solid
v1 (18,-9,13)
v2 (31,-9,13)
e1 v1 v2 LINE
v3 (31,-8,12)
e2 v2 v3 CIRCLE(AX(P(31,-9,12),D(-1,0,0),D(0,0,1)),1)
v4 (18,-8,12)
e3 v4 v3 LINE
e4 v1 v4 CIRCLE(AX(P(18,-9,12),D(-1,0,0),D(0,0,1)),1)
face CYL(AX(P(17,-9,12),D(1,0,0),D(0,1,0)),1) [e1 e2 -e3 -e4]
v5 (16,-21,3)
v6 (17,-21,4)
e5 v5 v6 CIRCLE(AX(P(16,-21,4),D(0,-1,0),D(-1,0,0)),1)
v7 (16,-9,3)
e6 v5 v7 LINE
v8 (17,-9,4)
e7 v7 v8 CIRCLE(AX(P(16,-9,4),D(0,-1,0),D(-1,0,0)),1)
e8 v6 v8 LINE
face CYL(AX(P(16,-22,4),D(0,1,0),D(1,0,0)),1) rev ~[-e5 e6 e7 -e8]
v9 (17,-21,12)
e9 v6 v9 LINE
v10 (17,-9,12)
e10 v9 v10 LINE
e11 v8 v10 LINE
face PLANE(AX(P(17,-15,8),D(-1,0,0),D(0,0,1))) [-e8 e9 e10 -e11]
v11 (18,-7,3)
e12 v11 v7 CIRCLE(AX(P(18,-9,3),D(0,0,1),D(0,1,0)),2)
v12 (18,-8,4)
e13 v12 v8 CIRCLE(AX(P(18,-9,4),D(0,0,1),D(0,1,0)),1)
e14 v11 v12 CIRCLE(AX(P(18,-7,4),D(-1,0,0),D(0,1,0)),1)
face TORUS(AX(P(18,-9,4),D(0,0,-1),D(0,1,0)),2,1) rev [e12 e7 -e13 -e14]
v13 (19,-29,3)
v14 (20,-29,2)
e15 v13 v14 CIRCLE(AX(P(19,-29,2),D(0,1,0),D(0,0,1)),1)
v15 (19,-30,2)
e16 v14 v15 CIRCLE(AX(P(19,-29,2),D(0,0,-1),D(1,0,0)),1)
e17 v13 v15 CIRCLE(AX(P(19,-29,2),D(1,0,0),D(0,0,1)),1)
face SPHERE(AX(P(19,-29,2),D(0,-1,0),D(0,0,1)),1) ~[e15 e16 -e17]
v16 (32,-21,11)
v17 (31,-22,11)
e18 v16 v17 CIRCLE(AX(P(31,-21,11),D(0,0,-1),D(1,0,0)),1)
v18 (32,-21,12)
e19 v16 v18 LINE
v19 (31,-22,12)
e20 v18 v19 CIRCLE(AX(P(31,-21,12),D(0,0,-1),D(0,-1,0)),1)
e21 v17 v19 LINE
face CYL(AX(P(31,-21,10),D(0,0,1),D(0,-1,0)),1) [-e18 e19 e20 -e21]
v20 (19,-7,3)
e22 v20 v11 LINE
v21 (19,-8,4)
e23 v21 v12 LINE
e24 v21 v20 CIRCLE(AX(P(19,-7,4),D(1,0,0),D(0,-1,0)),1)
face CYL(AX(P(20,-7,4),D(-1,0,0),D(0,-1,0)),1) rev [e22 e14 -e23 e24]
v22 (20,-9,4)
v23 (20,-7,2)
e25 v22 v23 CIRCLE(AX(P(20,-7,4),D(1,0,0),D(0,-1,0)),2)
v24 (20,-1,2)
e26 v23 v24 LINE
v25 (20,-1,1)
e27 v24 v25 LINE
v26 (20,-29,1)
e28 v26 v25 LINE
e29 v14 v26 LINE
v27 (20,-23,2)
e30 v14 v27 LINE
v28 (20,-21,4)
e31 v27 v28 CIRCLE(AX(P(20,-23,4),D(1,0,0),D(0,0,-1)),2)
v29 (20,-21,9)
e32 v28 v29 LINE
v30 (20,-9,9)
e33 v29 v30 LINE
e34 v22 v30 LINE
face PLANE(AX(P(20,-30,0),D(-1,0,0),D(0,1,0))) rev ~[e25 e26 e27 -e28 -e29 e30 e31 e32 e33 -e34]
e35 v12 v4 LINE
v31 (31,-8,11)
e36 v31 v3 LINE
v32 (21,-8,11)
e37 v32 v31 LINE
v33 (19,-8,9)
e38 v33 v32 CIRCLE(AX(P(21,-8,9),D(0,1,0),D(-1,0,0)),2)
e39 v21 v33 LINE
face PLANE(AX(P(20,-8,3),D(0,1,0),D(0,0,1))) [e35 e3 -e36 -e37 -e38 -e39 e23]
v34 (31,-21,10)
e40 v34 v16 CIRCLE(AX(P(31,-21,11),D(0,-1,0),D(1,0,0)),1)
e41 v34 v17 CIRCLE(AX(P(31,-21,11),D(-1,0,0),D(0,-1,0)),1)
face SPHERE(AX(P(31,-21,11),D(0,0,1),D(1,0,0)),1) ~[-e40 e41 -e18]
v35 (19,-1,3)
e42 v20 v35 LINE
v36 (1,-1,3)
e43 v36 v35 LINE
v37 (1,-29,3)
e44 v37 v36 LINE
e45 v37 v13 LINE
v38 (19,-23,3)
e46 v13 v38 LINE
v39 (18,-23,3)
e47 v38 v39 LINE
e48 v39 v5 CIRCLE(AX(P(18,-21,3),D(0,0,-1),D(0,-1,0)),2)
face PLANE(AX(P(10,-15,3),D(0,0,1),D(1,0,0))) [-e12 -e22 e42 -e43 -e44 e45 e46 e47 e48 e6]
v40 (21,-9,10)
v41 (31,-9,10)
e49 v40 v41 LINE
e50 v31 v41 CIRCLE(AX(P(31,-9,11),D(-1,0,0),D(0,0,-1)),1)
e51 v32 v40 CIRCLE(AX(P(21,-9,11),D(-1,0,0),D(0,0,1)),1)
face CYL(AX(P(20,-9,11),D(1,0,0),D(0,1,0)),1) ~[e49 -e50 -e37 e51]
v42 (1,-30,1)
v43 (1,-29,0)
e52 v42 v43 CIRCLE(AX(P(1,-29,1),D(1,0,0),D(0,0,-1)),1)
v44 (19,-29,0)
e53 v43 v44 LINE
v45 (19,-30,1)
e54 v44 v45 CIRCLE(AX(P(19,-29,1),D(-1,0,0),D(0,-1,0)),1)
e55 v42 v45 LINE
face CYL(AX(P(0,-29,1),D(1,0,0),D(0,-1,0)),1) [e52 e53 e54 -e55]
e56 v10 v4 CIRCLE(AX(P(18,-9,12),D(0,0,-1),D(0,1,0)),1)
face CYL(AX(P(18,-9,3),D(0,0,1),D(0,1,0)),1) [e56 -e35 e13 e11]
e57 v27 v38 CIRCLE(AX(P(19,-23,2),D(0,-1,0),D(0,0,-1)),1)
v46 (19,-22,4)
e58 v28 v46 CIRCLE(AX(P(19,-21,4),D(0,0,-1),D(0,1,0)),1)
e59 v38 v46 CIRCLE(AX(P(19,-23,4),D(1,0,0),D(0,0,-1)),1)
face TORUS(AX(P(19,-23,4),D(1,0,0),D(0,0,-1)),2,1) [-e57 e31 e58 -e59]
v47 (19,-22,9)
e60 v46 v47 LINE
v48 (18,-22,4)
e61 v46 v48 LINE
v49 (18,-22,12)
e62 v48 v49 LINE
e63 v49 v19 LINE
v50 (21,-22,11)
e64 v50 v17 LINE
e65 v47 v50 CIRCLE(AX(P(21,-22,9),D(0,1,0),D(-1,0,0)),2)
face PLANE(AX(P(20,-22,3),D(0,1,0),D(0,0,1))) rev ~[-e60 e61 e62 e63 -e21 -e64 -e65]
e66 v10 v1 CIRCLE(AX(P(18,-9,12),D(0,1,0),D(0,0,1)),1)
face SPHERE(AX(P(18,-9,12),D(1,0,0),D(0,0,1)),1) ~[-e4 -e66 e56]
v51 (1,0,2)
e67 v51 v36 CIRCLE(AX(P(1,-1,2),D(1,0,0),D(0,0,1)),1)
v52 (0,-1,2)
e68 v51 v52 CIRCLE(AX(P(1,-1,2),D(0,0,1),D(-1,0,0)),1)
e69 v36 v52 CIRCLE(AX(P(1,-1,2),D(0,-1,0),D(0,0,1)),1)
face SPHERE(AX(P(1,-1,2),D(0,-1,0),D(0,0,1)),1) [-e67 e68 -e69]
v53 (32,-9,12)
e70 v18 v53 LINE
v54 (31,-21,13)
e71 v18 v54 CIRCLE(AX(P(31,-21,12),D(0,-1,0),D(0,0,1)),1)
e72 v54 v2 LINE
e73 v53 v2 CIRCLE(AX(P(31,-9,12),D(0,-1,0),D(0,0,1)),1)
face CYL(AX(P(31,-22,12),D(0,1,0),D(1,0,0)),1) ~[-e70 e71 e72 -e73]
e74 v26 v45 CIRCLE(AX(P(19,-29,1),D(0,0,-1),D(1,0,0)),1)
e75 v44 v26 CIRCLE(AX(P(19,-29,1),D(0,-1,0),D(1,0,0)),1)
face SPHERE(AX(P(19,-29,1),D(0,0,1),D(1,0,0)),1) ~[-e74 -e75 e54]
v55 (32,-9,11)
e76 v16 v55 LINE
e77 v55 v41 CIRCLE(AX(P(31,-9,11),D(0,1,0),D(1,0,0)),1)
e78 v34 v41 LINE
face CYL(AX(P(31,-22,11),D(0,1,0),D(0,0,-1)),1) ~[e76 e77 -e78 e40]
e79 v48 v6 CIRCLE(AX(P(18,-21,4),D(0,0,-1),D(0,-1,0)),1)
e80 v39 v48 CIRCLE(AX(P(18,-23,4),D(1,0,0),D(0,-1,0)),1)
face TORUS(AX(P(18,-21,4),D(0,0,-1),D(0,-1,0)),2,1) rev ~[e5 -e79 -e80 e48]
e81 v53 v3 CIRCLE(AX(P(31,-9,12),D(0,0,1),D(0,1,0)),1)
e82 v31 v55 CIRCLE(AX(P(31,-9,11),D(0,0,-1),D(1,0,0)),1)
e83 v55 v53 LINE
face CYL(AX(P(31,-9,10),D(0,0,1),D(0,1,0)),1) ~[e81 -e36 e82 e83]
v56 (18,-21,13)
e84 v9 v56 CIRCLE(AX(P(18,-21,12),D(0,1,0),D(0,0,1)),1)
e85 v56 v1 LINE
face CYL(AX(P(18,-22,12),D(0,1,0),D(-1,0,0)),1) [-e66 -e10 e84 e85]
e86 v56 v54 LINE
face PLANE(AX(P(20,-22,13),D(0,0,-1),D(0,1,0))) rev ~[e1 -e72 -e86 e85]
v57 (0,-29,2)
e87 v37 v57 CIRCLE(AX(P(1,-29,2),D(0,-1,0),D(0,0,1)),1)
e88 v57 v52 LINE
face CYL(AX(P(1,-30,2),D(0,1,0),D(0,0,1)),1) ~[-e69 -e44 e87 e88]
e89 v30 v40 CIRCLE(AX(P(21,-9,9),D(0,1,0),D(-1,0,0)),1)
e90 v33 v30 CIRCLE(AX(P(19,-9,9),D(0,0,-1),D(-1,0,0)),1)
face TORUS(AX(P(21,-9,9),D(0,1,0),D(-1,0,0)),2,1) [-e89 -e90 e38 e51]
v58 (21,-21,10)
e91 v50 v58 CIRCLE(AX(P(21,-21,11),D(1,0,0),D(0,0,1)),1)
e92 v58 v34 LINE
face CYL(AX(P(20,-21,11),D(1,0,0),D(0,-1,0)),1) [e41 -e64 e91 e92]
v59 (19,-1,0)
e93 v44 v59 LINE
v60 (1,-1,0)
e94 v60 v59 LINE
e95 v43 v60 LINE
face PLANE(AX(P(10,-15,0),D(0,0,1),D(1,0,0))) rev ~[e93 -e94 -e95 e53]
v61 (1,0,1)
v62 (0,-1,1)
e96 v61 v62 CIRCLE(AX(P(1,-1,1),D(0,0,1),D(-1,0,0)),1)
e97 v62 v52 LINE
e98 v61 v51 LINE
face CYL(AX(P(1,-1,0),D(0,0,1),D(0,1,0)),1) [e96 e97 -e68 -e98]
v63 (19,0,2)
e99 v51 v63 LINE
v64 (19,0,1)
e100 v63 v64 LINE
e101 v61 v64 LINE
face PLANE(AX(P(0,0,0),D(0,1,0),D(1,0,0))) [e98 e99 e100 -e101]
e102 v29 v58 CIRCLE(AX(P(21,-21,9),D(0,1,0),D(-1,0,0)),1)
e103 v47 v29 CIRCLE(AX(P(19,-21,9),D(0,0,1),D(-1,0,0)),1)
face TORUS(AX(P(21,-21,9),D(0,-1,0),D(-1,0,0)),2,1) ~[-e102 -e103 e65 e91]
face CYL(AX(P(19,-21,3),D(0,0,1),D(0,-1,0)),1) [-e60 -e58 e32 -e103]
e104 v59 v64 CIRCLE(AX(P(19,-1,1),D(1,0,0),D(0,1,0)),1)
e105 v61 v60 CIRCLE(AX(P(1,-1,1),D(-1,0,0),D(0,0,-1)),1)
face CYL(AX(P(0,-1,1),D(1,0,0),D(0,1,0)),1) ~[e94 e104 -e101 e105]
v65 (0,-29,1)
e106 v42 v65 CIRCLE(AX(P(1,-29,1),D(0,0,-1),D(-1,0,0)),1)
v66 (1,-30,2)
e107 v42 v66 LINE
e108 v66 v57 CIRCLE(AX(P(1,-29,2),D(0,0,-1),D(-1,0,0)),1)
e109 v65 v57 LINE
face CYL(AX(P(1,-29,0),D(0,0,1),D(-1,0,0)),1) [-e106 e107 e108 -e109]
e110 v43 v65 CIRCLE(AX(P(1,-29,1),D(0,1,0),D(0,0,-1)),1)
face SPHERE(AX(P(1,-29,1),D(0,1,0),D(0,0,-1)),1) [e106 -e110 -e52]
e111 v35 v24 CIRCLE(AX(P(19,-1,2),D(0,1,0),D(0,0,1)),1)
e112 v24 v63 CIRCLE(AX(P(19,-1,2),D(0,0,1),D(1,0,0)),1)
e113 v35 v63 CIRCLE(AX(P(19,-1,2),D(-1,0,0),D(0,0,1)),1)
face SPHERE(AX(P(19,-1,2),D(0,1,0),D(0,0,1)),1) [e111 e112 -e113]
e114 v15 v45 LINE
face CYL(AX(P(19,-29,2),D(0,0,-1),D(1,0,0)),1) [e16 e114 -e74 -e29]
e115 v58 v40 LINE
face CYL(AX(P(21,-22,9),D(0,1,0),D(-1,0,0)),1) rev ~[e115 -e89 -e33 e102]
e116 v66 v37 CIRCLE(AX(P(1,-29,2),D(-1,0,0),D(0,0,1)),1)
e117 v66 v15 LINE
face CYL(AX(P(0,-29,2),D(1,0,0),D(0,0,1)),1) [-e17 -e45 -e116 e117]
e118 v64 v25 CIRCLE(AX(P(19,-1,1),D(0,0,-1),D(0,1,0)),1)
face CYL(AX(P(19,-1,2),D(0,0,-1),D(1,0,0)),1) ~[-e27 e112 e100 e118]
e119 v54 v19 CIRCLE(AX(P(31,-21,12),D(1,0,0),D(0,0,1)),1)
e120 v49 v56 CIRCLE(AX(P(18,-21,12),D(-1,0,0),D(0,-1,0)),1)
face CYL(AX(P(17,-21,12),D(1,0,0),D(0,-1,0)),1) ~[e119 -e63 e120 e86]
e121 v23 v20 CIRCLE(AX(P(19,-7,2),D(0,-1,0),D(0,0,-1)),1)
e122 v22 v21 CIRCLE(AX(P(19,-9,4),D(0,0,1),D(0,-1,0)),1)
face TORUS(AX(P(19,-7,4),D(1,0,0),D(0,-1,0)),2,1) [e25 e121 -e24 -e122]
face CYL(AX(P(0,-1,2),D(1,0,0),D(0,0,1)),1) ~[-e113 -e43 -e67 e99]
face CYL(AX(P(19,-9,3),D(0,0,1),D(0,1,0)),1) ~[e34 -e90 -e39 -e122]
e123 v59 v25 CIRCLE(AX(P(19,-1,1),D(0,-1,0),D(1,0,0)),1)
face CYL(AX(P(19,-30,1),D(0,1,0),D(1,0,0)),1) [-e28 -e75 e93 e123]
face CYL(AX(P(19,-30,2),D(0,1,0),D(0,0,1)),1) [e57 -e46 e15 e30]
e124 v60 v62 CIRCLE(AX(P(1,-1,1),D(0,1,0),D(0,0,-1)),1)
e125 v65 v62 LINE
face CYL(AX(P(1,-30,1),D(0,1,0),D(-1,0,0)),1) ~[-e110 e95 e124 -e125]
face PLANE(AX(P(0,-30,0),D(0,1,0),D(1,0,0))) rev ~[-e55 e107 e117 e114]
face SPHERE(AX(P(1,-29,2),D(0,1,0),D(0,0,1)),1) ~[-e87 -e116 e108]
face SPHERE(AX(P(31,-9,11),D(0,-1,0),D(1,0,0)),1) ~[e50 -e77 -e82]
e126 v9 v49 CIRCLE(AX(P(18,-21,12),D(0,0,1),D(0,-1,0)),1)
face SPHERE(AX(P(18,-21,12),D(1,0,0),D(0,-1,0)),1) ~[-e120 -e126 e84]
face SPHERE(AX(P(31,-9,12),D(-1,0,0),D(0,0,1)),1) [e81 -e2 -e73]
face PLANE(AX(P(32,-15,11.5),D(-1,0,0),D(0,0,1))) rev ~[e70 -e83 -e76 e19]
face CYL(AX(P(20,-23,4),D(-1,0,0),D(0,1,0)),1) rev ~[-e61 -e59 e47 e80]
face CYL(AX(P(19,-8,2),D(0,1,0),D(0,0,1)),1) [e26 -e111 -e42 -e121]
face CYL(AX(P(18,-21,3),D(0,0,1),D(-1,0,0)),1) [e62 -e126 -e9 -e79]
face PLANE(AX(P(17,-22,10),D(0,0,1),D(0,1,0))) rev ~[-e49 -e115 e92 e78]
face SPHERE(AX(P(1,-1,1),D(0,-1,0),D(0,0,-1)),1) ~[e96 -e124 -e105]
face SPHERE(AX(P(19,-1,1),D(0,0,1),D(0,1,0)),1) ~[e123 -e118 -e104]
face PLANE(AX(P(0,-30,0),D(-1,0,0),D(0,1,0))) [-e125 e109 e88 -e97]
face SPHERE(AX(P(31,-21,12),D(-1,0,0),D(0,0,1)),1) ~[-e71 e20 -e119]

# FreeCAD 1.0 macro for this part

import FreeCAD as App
import Part
import Sketcher

V = App.Vector
Q = App.Units.Quantity


def edges_at(feature, points):
    """Names of the edges that pass closest to the given points."""
    edges = feature.Shape.Edges
    near = lambda p: min(range(len(edges)), key=lambda i: edges[i].distToShape(Part.Vertex(*p))[0])
    return sorted({f"Edge{near(p) + 1}" for p in points})


def add_polygon(sketch, points):
    """Adds a closed chain of lines whose ends are joined by coincident constraints."""
    first, n = sketch.GeometryCount, len(points)
    for a, b in zip(points, points[1:] + points[:1]):
        sketch.addGeometry(Part.LineSegment(App.Vector(*a, 0), App.Vector(*b, 0)), False)
    for i in range(n):
        sketch.addConstraint(Sketcher.Constraint("Coincident", first + i, 2, first + (i + 1) % n, 1))

doc = App.newDocument("Part")
body = doc.addObject("PartDesign::Body", "Body")

# Sketch on XY plane
sketch1 = body.newObject("Sketcher::SketchObject", "Sketch")
sketch1.AttachmentSupport = (doc.getObject("XY_Plane"), [""])
sketch1.MapMode = "FlatFace"
add_polygon(sketch1, [(0, 0), (0, -30), (20, -30), (20, 0)])  # lines 0-3
sketch1.addConstraint(Sketcher.Constraint("Vertical", 0))
sketch1.addConstraint(Sketcher.Constraint("Horizontal", 1))
sketch1.addConstraint(Sketcher.Constraint("Vertical", 2))
sketch1.addConstraint(Sketcher.Constraint("Horizontal", 3))
sketch1.addConstraint(Sketcher.Constraint("Coincident", 3, 2, -1, 1))
sketch1.addConstraint(Sketcher.Constraint("DistanceX", 1, 1, 1, 2, Q("20 mm")))
sketch1.addConstraint(Sketcher.Constraint("DistanceY", 0, 2, 0, 1, Q("30 mm")))
pad1 = body.newObject("PartDesign::Pad", "Pad")
pad1.Profile = sketch1
pad1.Length = 3

# Sketch on YZ plane
sketch2 = body.newObject("Sketcher::SketchObject", "Sketch001")
sketch2.AttachmentSupport = (doc.getObject("YZ_Plane"), [""])
sketch2.MapMode = "FlatFace"
sketch2.AttachmentOffset = App.Placement(V(0, 0, 20), App.Rotation())
add_polygon(sketch2, [(-8, 3), (-22, 3), (-22, 13), (-8, 13)])  # lines 0-3
sketch2.addConstraint(Sketcher.Constraint("Horizontal", 0))
sketch2.addConstraint(Sketcher.Constraint("Vertical", 1))
sketch2.addConstraint(Sketcher.Constraint("Horizontal", 2))
sketch2.addConstraint(Sketcher.Constraint("Vertical", 3))
sketch2.addConstraint(Sketcher.Constraint("DistanceX", 0, 2, 0, 1, Q("14 mm")))
sketch2.addConstraint(Sketcher.Constraint("DistanceY", 1, 1, 1, 2, Q("10 mm")))
sketch2.addConstraint(Sketcher.Constraint("DistanceX", 0, 2, -1, 1, Q("22 mm")))
sketch2.addConstraint(Sketcher.Constraint("DistanceY", -1, 1, 0, 2, Q("3 mm")))
pad2 = body.newObject("PartDesign::Pad", "Pad001")
pad2.Profile = sketch2
pad2.Length = 3
pad2.Reversed = True

# Sketch on YZ plane
sketch3 = body.newObject("Sketcher::SketchObject", "Sketch002")
sketch3.AttachmentSupport = (doc.getObject("YZ_Plane"), [""])
sketch3.MapMode = "FlatFace"
sketch3.AttachmentOffset = App.Placement(V(0, 0, 17), App.Rotation())
add_polygon(sketch3, [(-8, 10), (-22, 10), (-22, 13), (-8, 13)])  # lines 0-3
sketch3.addConstraint(Sketcher.Constraint("Horizontal", 0))
sketch3.addConstraint(Sketcher.Constraint("Vertical", 1))
sketch3.addConstraint(Sketcher.Constraint("Horizontal", 2))
sketch3.addConstraint(Sketcher.Constraint("Vertical", 3))
sketch3.addConstraint(Sketcher.Constraint("DistanceX", 0, 2, 0, 1, Q("14 mm")))
sketch3.addConstraint(Sketcher.Constraint("DistanceY", 1, 1, 1, 2, Q("3 mm")))
sketch3.addConstraint(Sketcher.Constraint("DistanceX", 0, 2, -1, 1, Q("22 mm")))
sketch3.addConstraint(Sketcher.Constraint("DistanceY", -1, 1, 0, 2, Q("10 mm")))
pad3 = body.newObject("PartDesign::Pad", "Pad002")
pad3.Profile = sketch3
pad3.Length = 15
doc.recompute()

fillet = body.newObject("PartDesign::Fillet", "Fillet")
fillet.Base = (pad3, edges_at(pad3, [
    (20, -4, 3),
    (18.5, -8, 3),
    (20, -22, 6.5),
    (18.5, -22, 3),
    (24.5, -22, 13),
    (24.5, -8, 13),
    (17, -15, 3),
    (17, -22, 8),
    (17, -15, 13),
    (17, -8, 8),
    (20, -8, 6.5),
    (32, -15, 13),
    (32, -22, 11.5),
    (32, -15, 10),
    (26, -22, 10),
    (32, -8, 11.5),
    (26, -8, 10),
    (20, -15, 10),
    (20, -26, 3),
]))
fillet.Radius = 1
doc.recompute()

fillet2 = body.newObject("PartDesign::Fillet", "Fillet001")
fillet2.Base = (fillet, edges_at(fillet, [
    (0, -15, 3),
    (9.5, 0, 3),
    (9.5, -30, 3),
    (0, -15, 0),
    (20, -30, 1),
    (20, 0, 1),
    (10, 0, 0),
    (19.707, -30, 2.707),
    (19.707, 0, 2.707),
    (20, -15, 0),
    (10, -30, 0),
    (0, -30, 1.5),
    (0, 0, 1.5),
]))
fillet2.Radius = 1

doc.recompute()
